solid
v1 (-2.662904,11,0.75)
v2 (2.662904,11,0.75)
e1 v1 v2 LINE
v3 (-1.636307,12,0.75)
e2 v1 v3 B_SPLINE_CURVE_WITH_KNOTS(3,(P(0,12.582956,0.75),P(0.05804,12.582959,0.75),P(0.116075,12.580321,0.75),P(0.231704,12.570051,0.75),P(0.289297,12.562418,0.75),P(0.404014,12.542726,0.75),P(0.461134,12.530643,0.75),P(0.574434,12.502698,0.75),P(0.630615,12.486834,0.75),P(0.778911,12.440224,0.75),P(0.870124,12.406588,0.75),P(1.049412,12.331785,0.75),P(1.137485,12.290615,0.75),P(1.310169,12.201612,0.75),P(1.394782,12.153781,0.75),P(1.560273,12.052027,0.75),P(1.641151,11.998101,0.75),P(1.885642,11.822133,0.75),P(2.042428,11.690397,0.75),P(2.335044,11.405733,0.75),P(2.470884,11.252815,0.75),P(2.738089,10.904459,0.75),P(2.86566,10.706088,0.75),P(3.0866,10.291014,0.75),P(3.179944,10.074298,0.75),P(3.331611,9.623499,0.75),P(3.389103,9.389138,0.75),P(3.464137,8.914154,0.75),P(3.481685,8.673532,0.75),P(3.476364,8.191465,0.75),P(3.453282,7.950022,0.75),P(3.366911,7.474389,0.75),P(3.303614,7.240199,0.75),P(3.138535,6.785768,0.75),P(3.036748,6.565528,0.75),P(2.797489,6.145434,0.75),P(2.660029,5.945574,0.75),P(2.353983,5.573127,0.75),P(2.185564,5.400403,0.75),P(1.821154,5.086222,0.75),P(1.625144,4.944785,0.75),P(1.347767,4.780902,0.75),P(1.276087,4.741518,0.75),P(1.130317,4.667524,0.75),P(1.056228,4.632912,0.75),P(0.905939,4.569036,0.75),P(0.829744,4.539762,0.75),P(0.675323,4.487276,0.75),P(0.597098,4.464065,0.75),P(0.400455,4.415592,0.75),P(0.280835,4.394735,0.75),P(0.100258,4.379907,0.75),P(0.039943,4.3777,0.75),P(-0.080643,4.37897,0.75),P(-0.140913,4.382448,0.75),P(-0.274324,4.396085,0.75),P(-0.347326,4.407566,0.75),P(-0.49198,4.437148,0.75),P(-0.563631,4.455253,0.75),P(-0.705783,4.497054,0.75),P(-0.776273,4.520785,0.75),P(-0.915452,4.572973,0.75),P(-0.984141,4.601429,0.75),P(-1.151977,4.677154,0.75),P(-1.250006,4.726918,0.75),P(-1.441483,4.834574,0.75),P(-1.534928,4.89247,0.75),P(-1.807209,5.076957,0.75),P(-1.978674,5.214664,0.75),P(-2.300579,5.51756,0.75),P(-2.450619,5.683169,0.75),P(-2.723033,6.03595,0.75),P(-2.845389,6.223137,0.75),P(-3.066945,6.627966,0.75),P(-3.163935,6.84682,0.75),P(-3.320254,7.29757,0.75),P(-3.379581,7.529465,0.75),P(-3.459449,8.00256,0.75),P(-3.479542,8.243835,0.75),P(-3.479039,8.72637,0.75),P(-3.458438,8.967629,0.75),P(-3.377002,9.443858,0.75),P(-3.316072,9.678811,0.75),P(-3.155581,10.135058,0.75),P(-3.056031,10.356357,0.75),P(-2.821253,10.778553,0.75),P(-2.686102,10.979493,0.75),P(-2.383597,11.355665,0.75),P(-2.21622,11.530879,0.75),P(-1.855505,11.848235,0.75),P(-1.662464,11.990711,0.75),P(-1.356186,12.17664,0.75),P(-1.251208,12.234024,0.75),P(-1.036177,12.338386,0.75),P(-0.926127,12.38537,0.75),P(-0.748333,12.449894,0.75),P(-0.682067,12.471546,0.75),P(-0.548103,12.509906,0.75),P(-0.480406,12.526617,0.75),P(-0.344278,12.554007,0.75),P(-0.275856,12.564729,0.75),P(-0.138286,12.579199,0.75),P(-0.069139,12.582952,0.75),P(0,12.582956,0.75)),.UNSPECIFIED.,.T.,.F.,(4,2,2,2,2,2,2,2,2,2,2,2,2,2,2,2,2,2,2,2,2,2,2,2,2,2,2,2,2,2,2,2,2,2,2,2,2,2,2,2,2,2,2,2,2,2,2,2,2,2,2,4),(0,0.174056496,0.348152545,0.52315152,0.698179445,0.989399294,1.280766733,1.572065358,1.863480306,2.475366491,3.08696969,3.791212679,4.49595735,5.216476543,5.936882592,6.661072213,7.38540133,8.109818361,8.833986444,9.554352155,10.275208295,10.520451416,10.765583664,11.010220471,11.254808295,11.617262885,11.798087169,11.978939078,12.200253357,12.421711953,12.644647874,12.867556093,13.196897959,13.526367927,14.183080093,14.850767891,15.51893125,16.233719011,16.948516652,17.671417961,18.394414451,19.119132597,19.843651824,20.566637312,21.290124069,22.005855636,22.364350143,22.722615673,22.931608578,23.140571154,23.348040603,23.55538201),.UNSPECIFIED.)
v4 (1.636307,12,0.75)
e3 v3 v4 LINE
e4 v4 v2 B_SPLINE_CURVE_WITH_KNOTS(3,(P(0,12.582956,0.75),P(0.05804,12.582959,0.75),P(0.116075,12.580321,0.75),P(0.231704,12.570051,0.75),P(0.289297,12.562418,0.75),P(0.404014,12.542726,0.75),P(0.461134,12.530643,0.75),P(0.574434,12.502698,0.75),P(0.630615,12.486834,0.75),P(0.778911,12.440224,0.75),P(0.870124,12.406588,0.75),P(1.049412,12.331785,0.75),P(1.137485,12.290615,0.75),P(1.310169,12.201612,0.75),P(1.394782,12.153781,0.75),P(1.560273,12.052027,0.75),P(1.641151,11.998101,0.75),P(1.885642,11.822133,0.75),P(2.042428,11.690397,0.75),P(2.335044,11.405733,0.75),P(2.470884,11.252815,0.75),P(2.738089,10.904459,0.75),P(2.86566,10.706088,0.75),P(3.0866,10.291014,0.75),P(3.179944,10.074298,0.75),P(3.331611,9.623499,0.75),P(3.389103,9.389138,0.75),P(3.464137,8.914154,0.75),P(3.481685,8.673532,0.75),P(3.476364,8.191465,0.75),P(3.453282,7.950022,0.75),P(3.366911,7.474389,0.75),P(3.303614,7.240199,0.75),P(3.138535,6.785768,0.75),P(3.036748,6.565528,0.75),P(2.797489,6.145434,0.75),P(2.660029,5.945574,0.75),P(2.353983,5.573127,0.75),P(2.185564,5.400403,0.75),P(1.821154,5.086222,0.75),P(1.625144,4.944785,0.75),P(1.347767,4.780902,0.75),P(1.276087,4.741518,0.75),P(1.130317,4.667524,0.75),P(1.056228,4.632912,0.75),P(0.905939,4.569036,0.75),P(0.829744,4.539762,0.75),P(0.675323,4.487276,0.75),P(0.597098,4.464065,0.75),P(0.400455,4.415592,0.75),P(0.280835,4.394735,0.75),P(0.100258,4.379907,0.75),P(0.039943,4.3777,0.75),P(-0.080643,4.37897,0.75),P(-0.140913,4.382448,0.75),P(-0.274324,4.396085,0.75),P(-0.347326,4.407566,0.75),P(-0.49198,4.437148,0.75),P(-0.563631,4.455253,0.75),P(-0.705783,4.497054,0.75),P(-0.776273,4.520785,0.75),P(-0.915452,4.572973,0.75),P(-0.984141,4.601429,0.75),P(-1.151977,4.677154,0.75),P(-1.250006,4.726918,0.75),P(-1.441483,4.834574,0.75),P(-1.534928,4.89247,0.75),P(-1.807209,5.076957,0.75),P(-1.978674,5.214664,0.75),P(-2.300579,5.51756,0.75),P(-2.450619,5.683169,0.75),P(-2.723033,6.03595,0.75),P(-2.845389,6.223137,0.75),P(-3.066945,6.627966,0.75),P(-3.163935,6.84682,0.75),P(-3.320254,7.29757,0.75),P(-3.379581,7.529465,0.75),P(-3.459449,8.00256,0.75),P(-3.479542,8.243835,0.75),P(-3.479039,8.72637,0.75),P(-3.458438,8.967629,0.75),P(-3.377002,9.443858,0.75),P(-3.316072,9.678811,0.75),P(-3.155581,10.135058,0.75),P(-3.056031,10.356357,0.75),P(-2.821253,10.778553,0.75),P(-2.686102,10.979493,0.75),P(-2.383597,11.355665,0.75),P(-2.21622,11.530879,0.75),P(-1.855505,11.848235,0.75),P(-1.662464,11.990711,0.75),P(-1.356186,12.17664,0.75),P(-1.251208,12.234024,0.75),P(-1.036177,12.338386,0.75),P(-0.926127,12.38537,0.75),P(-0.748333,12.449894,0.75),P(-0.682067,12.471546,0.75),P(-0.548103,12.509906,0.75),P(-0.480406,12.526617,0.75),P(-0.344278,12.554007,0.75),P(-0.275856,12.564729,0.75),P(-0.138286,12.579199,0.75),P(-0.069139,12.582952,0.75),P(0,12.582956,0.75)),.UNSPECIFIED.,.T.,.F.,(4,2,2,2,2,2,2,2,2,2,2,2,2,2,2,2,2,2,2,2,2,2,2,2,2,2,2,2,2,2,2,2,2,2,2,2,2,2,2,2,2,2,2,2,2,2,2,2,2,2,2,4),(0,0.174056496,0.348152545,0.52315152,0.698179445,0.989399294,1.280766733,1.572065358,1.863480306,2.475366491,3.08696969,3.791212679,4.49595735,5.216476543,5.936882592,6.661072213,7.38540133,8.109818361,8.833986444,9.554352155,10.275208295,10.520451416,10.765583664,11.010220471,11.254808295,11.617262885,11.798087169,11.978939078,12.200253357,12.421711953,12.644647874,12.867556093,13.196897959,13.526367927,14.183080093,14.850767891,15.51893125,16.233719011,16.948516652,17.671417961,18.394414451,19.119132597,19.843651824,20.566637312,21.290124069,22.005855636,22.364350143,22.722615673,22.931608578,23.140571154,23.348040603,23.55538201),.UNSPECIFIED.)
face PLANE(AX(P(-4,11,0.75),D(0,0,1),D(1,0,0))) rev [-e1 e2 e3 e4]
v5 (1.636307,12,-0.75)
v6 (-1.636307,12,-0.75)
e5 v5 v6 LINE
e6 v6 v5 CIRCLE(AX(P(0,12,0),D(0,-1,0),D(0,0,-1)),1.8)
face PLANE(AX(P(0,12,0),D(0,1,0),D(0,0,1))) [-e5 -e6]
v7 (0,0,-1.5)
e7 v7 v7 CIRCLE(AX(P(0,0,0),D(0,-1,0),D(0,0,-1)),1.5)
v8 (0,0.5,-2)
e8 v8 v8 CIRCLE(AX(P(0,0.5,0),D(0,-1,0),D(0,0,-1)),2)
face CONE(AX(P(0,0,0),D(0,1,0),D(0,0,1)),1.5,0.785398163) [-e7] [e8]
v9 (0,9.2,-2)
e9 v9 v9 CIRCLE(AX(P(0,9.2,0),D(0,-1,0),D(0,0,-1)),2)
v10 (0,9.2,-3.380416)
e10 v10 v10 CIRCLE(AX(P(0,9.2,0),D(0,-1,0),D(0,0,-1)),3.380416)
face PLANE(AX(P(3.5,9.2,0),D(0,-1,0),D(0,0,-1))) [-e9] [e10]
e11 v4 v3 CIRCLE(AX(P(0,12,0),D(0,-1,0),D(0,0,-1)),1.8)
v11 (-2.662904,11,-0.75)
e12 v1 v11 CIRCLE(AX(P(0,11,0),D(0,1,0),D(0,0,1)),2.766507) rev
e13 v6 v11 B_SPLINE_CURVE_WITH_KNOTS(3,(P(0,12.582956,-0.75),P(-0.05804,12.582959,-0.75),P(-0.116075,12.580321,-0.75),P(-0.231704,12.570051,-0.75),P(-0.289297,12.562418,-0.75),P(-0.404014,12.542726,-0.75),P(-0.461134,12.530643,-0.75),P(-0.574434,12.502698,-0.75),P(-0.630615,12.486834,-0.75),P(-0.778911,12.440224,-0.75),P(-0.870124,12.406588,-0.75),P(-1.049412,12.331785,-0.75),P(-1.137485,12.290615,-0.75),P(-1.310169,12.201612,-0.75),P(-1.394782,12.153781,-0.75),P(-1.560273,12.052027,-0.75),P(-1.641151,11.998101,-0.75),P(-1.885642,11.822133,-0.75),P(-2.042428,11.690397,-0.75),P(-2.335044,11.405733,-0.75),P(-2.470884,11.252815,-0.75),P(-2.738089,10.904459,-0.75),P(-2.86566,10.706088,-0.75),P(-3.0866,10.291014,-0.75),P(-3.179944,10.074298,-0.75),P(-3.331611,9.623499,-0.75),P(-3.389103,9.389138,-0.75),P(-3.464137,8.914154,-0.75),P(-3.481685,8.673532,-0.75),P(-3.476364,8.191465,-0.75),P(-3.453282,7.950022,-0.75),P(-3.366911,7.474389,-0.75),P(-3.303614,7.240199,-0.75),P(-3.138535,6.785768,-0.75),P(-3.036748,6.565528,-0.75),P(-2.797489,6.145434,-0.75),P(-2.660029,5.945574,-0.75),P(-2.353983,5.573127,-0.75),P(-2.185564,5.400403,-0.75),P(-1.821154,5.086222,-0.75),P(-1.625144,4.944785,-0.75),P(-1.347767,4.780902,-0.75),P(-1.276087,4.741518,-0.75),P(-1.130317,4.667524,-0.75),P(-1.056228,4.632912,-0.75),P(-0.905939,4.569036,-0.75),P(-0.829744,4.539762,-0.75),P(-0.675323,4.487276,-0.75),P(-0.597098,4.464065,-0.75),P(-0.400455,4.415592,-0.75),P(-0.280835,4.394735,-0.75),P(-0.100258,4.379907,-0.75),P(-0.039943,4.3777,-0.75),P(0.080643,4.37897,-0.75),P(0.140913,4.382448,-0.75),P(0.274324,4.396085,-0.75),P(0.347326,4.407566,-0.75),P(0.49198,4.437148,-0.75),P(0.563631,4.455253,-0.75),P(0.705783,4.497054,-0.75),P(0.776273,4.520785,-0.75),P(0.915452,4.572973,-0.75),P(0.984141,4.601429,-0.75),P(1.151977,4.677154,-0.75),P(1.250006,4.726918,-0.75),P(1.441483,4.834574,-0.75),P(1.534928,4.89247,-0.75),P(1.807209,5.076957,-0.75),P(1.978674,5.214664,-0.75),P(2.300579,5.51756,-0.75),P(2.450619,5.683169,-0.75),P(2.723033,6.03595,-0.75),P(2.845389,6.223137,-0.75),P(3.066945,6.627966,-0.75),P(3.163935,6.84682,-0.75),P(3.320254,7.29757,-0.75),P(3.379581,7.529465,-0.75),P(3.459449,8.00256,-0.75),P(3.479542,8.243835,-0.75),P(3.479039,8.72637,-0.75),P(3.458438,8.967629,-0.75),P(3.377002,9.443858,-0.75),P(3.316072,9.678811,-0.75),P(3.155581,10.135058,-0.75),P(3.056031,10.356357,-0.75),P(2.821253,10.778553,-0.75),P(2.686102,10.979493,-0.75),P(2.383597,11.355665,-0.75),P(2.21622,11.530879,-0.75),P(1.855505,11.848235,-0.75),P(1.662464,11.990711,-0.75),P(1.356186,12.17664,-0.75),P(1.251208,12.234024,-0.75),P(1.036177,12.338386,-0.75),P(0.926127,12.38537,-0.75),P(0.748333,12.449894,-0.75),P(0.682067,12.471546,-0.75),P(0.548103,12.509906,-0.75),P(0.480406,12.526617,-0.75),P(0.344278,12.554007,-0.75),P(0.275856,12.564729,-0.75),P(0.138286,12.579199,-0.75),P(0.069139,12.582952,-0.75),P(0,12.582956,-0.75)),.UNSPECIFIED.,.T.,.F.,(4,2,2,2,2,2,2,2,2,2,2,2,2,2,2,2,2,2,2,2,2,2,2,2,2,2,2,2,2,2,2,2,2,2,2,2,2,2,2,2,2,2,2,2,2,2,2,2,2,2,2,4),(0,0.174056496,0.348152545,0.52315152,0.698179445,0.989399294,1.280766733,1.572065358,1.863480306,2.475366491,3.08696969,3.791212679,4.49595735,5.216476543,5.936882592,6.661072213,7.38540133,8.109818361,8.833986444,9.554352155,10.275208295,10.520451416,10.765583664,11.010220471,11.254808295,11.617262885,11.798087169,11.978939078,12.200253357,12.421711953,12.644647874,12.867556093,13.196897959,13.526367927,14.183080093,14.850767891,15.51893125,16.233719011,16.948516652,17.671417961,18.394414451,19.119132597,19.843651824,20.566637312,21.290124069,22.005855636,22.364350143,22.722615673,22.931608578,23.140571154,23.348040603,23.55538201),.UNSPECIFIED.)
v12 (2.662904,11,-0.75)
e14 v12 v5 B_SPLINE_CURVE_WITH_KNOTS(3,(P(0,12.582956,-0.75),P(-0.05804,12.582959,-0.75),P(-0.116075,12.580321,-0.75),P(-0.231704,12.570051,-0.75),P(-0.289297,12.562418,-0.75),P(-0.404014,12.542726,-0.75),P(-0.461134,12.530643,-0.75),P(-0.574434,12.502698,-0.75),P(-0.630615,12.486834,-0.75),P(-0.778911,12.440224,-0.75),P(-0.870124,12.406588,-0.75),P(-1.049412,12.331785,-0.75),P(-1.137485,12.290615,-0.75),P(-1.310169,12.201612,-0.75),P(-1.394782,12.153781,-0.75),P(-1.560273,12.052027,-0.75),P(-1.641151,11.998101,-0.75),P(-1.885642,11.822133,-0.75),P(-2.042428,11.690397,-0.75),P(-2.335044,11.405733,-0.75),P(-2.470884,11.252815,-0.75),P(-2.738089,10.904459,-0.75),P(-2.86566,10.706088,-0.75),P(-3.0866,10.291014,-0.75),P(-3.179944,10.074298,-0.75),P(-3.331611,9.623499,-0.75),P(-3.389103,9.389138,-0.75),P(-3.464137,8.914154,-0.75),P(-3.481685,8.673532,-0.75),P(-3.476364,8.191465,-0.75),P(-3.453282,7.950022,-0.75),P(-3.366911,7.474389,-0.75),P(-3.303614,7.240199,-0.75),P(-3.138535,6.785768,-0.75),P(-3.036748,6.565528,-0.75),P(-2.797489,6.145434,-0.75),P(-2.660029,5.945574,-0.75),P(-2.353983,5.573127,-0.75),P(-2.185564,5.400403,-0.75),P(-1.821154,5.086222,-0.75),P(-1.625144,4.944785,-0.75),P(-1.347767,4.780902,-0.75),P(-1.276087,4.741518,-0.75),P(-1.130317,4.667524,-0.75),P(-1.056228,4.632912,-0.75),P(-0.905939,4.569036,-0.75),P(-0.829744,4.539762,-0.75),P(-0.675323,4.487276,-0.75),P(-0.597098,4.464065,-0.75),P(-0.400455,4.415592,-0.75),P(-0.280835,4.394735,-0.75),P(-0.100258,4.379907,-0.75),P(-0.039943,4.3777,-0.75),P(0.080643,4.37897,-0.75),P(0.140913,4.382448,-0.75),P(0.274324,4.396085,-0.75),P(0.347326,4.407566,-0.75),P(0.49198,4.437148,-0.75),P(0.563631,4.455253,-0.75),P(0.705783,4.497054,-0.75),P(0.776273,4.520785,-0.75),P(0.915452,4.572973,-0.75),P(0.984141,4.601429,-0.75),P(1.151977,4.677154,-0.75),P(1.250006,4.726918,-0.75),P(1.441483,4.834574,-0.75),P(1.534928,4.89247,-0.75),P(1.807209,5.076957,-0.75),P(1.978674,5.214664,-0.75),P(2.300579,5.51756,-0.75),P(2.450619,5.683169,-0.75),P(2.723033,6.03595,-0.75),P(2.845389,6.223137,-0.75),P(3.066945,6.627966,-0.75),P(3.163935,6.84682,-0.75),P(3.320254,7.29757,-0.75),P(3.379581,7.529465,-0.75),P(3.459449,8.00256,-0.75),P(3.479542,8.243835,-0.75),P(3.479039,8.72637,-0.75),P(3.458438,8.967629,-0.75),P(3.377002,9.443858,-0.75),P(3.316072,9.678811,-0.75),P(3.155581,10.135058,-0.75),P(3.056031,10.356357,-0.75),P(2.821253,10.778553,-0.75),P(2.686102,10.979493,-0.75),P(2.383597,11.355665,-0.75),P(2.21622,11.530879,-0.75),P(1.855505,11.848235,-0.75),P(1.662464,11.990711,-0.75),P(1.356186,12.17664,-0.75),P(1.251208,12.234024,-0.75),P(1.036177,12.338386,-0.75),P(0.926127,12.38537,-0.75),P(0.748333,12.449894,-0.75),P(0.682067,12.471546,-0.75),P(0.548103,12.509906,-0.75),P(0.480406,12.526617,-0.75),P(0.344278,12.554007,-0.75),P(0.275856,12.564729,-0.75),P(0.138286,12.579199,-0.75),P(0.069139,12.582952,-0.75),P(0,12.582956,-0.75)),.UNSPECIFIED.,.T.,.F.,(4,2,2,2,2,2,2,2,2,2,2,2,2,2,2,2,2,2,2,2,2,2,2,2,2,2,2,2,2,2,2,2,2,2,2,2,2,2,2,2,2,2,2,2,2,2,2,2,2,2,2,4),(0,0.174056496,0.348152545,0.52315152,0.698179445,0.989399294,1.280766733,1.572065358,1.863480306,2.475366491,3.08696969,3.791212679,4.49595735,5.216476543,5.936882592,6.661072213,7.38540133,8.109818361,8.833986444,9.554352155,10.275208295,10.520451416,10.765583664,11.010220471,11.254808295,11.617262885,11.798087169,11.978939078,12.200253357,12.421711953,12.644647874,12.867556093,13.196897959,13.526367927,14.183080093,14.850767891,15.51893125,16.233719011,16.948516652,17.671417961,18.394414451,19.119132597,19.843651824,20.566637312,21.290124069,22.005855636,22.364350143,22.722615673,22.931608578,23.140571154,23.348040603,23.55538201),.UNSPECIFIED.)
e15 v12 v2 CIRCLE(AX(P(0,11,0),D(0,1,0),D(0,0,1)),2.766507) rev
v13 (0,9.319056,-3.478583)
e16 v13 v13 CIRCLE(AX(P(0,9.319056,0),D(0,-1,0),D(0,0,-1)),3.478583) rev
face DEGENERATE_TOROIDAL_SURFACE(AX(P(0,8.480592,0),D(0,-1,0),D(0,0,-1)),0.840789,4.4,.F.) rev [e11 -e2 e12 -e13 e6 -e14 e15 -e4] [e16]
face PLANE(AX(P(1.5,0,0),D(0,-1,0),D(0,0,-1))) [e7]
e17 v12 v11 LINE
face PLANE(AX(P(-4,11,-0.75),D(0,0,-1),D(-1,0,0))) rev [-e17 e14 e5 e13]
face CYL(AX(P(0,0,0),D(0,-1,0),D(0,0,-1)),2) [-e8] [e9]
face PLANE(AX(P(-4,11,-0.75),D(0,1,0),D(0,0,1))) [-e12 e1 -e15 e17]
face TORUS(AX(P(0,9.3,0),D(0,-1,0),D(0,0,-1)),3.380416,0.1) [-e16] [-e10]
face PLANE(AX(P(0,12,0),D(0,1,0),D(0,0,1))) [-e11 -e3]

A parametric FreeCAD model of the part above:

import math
import FreeCAD as App
import Part
import Sketcher
Q = App.Units.Quantity


def edges_at(feature, points):
    """Names of the edges that pass closest to the given points."""
    edges = feature.Shape.Edges
    near = lambda p: min(range(len(edges)), key=lambda i: edges[i].distToShape(Part.Vertex(*p))[0])
    return sorted({f"Edge{near(p) + 1}" for p in points})

doc = App.newDocument("Part")
body = doc.addObject("PartDesign::Body", "Body")

# Sketch on XY plane
sketch1 = body.newObject("Sketcher::SketchObject", "Sketch")
sketch1.AttachmentSupport = (doc.getObject("XY_Plane"), [""])
sketch1.MapMode = "FlatFace"
sketch1.addGeometry(Part.LineSegment(App.Vector(2, 9.2, 0), App.Vector(3.5, 9.2, 0)), False)
sketch1.addGeometry(Part.ArcOfCircle(Part.Circle(App.Vector(-0.840789, 8.480592, 0), App.Vector(0, 0, 1), 4.4), math.radians(9.410211), math.radians(53.117252)), False)
sketch1.addGeometry(Part.LineSegment(App.Vector(1.8, 12, 0), App.Vector(0, 12, 0)), False)
sketch1.addGeometry(Part.LineSegment(App.Vector(0, 12, 0), App.Vector(0, 0, 0)), False)
sketch1.addGeometry(Part.LineSegment(App.Vector(0, 0, 0), App.Vector(1.5, 0, 0)), False)
sketch1.addGeometry(Part.LineSegment(App.Vector(1.5, 0, 0), App.Vector(2, 0.5, 0)), False)
sketch1.addGeometry(Part.LineSegment(App.Vector(2, 0.5, 0), App.Vector(2, 9.2, 0)), False)
sketch1.addConstraint(Sketcher.Constraint("Coincident", 0, 2, 1, 1))
sketch1.addConstraint(Sketcher.Constraint("Coincident", 1, 2, 2, 1))
sketch1.addConstraint(Sketcher.Constraint("Coincident", 2, 2, 3, 1))
sketch1.addConstraint(Sketcher.Constraint("Coincident", 3, 2, 4, 1))
sketch1.addConstraint(Sketcher.Constraint("Coincident", 4, 2, 5, 1))
sketch1.addConstraint(Sketcher.Constraint("Coincident", 5, 2, 6, 1))
sketch1.addConstraint(Sketcher.Constraint("Coincident", 6, 2, 0, 1))
sketch1.addConstraint(Sketcher.Constraint("Horizontal", 0))
sketch1.addConstraint(Sketcher.Constraint("Horizontal", 2))
sketch1.addConstraint(Sketcher.Constraint("Vertical", 3))
sketch1.addConstraint(Sketcher.Constraint("Horizontal", 4))
sketch1.addConstraint(Sketcher.Constraint("Vertical", 6))
sketch1.addConstraint(Sketcher.Constraint("Coincident", 3, 2, -1, 1))
sketch1.addConstraint(Sketcher.Constraint("Equal", 0, 4))
sketch1.addConstraint(Sketcher.Constraint("Radius", 1, Q("4.4 mm")))
sketch1.addConstraint(Sketcher.Constraint("DistanceY", 3, 2, 3, 1, Q("12 mm")))
sketch1.addConstraint(Sketcher.Constraint("Angle", 5, Q("45 deg")))
sketch1.addConstraint(Sketcher.Constraint("DistanceX", 0, 1, 0, 2, Q("1.5 mm")))
sketch1.addConstraint(Sketcher.Constraint("DistanceX", 2, 2, 2, 1, Q("1.8 mm")))
sketch1.addConstraint(Sketcher.Constraint("DistanceY", 6, 1, 6, 2, Q("8.7 mm")))
sketch1.addConstraint(Sketcher.Constraint("DistanceX", -1, 1, 5, 2, Q("2 mm")))
revolution = body.newObject("PartDesign::Revolution", "Revolution")
revolution.Profile = sketch1
revolution.ReferenceAxis = (sketch1, ["V_Axis"])
revolution.Angle = 360
doc.recompute()

fillet = body.newObject("PartDesign::Fillet", "Fillet")
fillet.Base = (revolution, edges_at(revolution, [(0, 9.2, 3.5)]))
fillet.Radius = 0.1

# Sketch on XZ plane
sketch2 = body.newObject("Sketcher::SketchObject", "Sketch001")
sketch2.AttachmentSupport = (doc.getObject("XZ_Plane"), [""])
sketch2.MapMode = "FlatFace"
sketch2.AttachmentOffset = App.Placement(App.Vector(0, 0, -12), App.Rotation())
sketch2.addGeometry(Part.LineSegment(App.Vector(4, 0.75, 0), App.Vector(4, -0.75, 0)), False)
sketch2.addGeometry(Part.LineSegment(App.Vector(4, -0.75, 0), App.Vector(-4, -0.75, 0)), False)
sketch2.addGeometry(Part.LineSegment(App.Vector(-4, -0.75, 0), App.Vector(-4, 0.75, 0)), False)
sketch2.addGeometry(Part.LineSegment(App.Vector(-4, 0.75, 0), App.Vector(4, 0.75, 0)), False)
sketch2.addConstraint(Sketcher.Constraint("Coincident", 0, 2, 1, 1))
sketch2.addConstraint(Sketcher.Constraint("Coincident", 1, 2, 2, 1))
sketch2.addConstraint(Sketcher.Constraint("Coincident", 2, 2, 3, 1))
sketch2.addConstraint(Sketcher.Constraint("Coincident", 3, 2, 0, 1))
sketch2.addConstraint(Sketcher.Constraint("Vertical", 0))
sketch2.addConstraint(Sketcher.Constraint("Horizontal", 1))
sketch2.addConstraint(Sketcher.Constraint("Vertical", 2))
sketch2.addConstraint(Sketcher.Constraint("Horizontal", 3))
sketch2.addConstraint(Sketcher.Constraint("Symmetric", 0, 2, 2, 2, -1, 1))
sketch2.addConstraint(Sketcher.Constraint("DistanceX", 1, 2, 1, 1, Q("8 mm")))
sketch2.addConstraint(Sketcher.Constraint("DistanceY", 0, 2, 0, 1, Q("1.5 mm")))
pocket1 = body.newObject("PartDesign::Pocket", "Pocket")
pocket1.Profile = sketch2
pocket1.Length = 1
pocket1.Reversed = True

doc.recompute()
